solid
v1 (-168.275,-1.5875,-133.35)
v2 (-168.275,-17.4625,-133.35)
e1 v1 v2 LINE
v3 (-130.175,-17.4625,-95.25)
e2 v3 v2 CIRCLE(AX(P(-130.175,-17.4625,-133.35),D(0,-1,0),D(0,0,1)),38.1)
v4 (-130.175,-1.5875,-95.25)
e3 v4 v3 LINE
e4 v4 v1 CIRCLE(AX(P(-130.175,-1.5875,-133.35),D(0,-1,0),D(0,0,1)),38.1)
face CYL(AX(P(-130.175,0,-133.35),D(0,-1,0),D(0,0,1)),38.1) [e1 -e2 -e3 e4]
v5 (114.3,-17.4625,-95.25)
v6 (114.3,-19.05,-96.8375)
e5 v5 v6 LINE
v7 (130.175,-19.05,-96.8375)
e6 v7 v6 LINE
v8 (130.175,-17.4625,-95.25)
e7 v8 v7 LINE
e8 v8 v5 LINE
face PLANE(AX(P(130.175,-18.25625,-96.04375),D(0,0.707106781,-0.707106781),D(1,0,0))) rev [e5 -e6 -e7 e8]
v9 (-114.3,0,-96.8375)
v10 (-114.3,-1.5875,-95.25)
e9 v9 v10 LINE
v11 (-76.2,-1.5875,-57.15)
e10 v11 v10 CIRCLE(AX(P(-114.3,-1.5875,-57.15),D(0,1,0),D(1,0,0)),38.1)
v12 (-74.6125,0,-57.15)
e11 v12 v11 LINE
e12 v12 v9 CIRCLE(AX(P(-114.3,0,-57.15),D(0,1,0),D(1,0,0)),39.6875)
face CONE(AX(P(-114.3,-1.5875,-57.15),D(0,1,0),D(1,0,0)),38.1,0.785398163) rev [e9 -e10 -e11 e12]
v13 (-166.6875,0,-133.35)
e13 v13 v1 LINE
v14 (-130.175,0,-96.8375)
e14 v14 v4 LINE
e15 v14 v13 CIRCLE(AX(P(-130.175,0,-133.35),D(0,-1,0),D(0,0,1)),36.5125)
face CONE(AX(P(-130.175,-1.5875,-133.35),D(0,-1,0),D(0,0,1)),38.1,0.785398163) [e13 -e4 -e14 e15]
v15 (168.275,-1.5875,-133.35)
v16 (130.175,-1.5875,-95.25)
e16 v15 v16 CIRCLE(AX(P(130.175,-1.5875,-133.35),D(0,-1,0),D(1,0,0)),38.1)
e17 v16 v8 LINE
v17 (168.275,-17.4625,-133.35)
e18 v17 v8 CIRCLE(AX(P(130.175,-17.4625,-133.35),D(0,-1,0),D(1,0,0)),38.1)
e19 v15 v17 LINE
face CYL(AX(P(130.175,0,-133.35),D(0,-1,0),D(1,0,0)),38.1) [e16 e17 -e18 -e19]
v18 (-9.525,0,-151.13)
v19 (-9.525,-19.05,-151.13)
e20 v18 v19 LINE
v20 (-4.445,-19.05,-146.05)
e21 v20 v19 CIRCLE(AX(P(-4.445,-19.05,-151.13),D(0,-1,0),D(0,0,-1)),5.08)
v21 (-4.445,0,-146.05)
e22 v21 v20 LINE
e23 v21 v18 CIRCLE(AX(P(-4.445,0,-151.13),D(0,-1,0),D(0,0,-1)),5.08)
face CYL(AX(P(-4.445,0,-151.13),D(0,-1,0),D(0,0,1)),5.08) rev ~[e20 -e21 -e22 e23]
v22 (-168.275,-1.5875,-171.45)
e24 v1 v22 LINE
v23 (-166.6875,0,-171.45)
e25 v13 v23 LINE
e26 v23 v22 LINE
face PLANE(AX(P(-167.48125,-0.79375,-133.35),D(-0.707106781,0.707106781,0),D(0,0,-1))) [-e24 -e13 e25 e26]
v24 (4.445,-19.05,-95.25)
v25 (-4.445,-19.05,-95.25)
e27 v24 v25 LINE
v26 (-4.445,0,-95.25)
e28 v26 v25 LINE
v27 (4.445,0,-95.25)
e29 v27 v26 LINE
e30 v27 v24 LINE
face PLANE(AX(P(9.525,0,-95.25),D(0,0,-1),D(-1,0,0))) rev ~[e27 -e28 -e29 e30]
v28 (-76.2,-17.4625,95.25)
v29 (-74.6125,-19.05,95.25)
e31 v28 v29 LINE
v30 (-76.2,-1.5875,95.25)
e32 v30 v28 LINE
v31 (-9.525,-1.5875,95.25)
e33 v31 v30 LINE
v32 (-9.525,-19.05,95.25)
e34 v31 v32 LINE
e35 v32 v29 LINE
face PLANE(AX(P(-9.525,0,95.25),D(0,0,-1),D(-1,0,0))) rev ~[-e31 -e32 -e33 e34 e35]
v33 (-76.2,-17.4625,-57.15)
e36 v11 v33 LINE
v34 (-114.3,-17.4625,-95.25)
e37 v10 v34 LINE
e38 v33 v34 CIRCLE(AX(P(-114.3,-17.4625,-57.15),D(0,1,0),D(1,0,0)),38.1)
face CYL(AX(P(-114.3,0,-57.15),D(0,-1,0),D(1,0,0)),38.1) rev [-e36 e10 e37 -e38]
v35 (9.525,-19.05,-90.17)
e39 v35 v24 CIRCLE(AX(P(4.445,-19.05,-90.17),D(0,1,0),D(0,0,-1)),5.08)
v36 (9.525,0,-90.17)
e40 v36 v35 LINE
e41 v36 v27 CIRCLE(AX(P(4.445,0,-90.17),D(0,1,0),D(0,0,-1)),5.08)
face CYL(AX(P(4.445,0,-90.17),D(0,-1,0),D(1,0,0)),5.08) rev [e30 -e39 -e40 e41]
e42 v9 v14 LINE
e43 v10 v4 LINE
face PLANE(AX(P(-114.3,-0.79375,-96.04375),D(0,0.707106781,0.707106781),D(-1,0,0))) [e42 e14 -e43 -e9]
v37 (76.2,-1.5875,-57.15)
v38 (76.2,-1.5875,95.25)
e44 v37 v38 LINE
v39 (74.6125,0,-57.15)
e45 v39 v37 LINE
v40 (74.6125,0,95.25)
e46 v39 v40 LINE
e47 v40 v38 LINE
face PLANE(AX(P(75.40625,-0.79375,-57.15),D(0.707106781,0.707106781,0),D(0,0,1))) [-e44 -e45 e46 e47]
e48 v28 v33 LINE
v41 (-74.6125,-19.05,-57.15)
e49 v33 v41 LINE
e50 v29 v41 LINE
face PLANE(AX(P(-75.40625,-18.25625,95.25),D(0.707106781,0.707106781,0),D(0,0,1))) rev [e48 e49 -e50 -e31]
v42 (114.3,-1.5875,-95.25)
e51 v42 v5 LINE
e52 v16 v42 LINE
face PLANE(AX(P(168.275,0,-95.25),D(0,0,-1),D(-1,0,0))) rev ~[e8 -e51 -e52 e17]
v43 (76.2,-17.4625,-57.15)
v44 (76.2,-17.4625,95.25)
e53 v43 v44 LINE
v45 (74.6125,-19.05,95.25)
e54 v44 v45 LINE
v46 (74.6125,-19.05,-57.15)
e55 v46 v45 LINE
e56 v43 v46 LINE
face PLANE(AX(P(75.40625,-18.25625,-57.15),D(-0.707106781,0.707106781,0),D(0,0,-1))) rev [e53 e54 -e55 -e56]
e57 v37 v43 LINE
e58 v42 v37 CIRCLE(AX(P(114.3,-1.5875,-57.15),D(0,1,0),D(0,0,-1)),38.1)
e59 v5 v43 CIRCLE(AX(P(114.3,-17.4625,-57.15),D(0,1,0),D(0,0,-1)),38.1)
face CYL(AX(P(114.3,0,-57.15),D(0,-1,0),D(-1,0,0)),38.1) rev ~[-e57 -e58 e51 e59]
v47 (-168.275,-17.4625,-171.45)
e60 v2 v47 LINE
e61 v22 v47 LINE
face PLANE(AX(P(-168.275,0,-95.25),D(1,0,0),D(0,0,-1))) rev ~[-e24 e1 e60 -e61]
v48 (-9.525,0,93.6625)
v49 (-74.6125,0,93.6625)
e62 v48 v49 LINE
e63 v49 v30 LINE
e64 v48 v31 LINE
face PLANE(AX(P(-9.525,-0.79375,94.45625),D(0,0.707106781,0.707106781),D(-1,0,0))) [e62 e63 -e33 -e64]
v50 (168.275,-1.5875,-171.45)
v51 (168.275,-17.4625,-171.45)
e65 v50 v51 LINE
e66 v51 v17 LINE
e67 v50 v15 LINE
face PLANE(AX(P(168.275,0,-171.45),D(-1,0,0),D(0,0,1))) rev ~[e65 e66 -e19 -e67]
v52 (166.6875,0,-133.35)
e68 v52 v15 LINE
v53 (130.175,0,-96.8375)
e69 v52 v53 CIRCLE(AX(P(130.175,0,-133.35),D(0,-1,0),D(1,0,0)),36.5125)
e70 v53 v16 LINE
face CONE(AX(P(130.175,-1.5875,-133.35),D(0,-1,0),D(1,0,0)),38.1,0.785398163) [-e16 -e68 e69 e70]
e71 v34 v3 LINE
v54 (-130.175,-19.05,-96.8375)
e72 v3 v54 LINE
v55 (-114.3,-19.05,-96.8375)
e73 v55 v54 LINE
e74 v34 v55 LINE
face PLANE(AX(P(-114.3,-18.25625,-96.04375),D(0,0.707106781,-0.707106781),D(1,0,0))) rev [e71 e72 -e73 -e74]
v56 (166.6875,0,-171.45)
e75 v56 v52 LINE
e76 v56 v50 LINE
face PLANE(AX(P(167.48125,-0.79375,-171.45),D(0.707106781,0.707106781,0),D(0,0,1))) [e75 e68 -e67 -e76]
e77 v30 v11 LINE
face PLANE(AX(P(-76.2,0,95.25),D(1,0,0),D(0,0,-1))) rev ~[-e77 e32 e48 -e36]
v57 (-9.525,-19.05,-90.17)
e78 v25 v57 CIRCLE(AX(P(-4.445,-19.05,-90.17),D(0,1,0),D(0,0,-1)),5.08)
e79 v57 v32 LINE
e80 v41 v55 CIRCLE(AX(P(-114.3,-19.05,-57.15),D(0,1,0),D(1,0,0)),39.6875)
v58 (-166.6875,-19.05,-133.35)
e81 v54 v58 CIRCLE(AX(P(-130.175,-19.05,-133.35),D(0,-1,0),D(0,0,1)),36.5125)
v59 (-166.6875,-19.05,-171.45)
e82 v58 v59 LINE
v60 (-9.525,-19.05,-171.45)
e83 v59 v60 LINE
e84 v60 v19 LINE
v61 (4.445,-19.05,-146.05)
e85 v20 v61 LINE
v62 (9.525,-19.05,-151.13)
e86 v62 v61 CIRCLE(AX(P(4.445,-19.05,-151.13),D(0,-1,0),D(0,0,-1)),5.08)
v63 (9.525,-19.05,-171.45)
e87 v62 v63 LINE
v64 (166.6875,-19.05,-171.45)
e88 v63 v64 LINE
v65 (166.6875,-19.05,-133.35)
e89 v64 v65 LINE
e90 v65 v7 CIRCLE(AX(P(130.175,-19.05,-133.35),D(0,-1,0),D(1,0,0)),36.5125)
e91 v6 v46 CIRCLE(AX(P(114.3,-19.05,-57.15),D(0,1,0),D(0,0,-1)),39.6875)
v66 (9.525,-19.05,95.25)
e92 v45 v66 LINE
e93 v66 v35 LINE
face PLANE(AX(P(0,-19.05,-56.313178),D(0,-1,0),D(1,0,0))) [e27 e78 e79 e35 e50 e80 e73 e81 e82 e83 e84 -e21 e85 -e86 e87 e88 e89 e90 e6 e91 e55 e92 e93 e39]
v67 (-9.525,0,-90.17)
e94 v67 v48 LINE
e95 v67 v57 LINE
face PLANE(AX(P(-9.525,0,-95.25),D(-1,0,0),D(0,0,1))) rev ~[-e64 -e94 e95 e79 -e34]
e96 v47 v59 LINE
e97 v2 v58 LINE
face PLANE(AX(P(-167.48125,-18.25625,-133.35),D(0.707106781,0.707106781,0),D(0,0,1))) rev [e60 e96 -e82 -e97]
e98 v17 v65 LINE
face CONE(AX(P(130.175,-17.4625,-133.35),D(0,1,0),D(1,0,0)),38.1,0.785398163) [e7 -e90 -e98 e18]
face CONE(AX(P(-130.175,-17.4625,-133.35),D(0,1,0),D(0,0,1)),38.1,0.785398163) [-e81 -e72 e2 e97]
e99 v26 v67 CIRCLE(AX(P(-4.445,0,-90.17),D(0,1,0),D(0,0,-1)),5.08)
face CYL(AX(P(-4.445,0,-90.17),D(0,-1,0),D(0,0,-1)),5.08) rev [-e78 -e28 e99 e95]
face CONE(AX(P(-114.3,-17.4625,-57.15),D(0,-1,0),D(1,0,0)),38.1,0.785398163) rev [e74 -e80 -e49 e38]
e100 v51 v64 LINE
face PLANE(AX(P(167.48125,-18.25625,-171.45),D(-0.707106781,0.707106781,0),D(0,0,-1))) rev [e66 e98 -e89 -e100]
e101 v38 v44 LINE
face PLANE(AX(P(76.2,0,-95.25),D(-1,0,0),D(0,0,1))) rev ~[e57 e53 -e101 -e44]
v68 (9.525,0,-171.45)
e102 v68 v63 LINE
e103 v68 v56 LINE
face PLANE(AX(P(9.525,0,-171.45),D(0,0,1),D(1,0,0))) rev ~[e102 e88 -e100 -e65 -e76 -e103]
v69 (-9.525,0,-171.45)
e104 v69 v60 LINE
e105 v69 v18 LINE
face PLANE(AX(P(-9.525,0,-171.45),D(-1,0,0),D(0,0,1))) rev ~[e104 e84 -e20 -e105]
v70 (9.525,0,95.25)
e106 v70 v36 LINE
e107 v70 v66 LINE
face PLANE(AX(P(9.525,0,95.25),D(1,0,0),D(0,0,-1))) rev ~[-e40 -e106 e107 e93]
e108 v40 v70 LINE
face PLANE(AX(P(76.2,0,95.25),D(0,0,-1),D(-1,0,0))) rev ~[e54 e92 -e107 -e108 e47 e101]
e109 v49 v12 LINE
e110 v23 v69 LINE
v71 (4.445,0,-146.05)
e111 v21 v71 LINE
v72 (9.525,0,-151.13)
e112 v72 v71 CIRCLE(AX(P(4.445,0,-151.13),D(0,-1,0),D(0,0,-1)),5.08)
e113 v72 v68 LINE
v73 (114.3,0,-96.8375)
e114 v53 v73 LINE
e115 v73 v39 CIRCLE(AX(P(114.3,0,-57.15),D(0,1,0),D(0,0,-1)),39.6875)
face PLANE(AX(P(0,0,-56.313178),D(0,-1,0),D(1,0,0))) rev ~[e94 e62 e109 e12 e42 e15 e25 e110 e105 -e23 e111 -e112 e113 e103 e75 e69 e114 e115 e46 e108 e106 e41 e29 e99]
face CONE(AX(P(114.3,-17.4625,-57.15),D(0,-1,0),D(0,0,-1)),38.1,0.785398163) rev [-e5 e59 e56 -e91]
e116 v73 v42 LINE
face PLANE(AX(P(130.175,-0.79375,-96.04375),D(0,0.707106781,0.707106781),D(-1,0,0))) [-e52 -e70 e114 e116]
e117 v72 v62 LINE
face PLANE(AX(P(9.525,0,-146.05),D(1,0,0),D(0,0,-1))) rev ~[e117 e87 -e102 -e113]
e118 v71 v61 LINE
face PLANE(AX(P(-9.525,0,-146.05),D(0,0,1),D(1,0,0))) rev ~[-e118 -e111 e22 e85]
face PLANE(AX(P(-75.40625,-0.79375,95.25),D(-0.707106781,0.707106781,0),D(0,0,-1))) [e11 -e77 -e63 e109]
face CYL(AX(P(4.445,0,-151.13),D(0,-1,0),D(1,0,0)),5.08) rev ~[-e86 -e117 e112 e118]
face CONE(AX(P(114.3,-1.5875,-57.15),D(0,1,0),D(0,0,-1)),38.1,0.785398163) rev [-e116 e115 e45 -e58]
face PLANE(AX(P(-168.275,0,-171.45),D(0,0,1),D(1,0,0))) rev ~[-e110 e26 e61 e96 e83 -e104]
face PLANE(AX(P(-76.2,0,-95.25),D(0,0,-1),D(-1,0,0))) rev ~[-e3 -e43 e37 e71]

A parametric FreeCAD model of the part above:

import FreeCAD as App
import Part
import Sketcher

V = App.Vector
Q = App.Units.Quantity


def edges_at(feature, points):
    """Names of the edges that pass closest to the given points."""
    edges = feature.Shape.Edges
    near = lambda p: min(range(len(edges)), key=lambda i: edges[i].distToShape(Part.Vertex(*p))[0])
    return sorted({f"Edge{near(p) + 1}" for p in points})


def add_polygon(sketch, points):
    """Adds a closed chain of lines whose ends are joined by coincident constraints."""
    first, n = sketch.GeometryCount, len(points)
    for a, b in zip(points, points[1:] + points[:1]):
        sketch.addGeometry(Part.LineSegment(App.Vector(*a, 0), App.Vector(*b, 0)), False)
    for i in range(n):
        sketch.addConstraint(Sketcher.Constraint("Coincident", first + i, 2, first + (i + 1) % n, 1))

doc = App.newDocument("Part")
body = doc.addObject("PartDesign::Body", "Body")

sketch1 = doc.addObject("Sketcher::SketchObject", "Sketch")
body.addObject(sketch1)
sketch1.AttachmentSupport = (doc.XZ_Plane, [""])
sketch1.MapMode = "FlatFace"
add_polygon(sketch1, [(76, -95), (76, 95), (10, 95), (10, -95), (-10, -95), (-10, 95), (-76, 95), (-76, -95), (-168, -95), (-168, -171), (-10, -171), (-10, -146), (10, -146), (10, -171), (168, -171), (168, -95)])
sketch1.addConstraint([
    Sketcher.Constraint("Vertical", 0),
    Sketcher.Constraint("Horizontal", 1),
    Sketcher.Constraint("Vertical", 2),
    Sketcher.Constraint("Horizontal", 3),
    Sketcher.Constraint("Vertical", 4),
    Sketcher.Constraint("Horizontal", 5),
    Sketcher.Constraint("Vertical", 6),
    Sketcher.Constraint("Horizontal", 7),
    Sketcher.Constraint("Vertical", 8),
    Sketcher.Constraint("Horizontal", 9),
    Sketcher.Constraint("Vertical", 10),
    Sketcher.Constraint("Horizontal", 11),
    Sketcher.Constraint("Vertical", 12),
    Sketcher.Constraint("Horizontal", 13),
    Sketcher.Constraint("Vertical", 14),
    Sketcher.Constraint("Horizontal", 15),
    Sketcher.Constraint("Symmetric", 1, 2, 3, 2, -1, 1),
    Sketcher.Constraint("Symmetric", 0, 2, 6, 2, -1, 1),
    Sketcher.Constraint("Symmetric", 9, 2, 12, 2, -2),
    Sketcher.Constraint("Symmetric", 7, 2, 14, 2, -2),
    Sketcher.Constraint("Horizontal", 1, 2, 4, 2),
    Sketcher.Constraint("Vertical", 4, 2, 9, 2),
    Sketcher.Constraint("DistanceY", 8, 2, 8, 1, Q("3 in")),
    Sketcher.Constraint("DistanceY", 10, 1, 10, 2, Q("1 in")),
    Sketcher.Constraint("DistanceY", 0, 1, 0, 2, Q("7.5 in")),
    Sketcher.Constraint("DistanceX", -1, 1, 0, 2, Q("3 in")),
    Sketcher.Constraint("DistanceX", 7, 2, 2, 2, Q("7 in")),
    Sketcher.Constraint("DistanceX", 3, 2, 3, 1, Q("0.75 in")),
])
pad1 = doc.addObject("PartDesign::Pad", "Pad")
body.addObject(pad1)
pad1.Profile = sketch1
pad1.Length = Q("0.75 in")
doc.recompute()

fillet = doc.addObject("PartDesign::Fillet", "Fillet")
body.addObject(fillet)
fillet.Base = (pad1, edges_at(pad1, [
    (-168.275, -9.525, -95.25),
    (-76.2, -9.525, -95.25),
    (76.2, -9.525, -95.25),
    (168.275, -9.525, -95.25),
]))
fillet.Radius = Q("1.5 in")
doc.recompute()

fillet2 = doc.addObject("PartDesign::Fillet", "Fillet001")
body.addObject(fillet2)
fillet2.Base = (fillet, edges_at(fillet, [
    (9.525, -9.525, -95.25),
    (-9.525, -9.525, -95.25),
    (-9.525, -9.525, -146.05),
    (9.525, -9.525, -146.05),
]))
fillet2.Radius = Q("0.2 in")
doc.recompute()

chamfer = doc.addObject("PartDesign::Chamfer", "Chamfer")
body.addObject(chamfer)
chamfer.Base = (fillet2, edges_at(fillet2, [
    (-122.237, -19.05, -95.25),
    (122.237, -19.05, -95.25),
    (122.237, 0, -95.25),
    (-42.862, 0, 95.25),
    (-76.2, 0, 19.05),
    (-122.237, 0, -95.25),
]))
chamfer.Size = Q("0.0625 in")

doc.recompute()
